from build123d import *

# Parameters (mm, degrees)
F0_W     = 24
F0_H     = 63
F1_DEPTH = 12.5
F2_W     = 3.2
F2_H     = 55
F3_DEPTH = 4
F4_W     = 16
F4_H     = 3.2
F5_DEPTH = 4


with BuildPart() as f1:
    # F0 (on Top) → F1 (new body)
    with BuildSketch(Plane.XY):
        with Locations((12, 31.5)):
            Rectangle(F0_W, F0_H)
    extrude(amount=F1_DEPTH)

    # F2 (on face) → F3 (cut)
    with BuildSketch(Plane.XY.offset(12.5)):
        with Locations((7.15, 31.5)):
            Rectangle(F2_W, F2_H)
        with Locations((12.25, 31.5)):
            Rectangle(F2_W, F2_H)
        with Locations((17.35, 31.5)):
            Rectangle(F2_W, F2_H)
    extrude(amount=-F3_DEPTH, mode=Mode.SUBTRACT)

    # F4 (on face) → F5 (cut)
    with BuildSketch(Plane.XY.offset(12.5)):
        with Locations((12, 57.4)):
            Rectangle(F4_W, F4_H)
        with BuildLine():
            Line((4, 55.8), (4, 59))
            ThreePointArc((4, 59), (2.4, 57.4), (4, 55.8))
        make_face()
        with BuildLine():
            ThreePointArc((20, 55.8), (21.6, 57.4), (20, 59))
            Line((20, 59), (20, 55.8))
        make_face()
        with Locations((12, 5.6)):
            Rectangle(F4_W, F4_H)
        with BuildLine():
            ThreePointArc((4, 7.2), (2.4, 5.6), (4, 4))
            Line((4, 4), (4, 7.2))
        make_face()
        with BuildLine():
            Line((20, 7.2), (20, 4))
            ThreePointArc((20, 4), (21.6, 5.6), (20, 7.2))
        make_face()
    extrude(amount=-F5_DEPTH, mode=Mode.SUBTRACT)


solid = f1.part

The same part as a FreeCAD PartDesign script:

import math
import FreeCAD as App
import Part
import Sketcher


def add_polygon(sketch, points):
    """Adds a closed chain of lines whose ends are joined by coincident constraints."""
    first, n = sketch.GeometryCount, len(points)
    for a, b in zip(points, points[1:] + points[:1]):
        sketch.addGeometry(Part.LineSegment(App.Vector(*a, 0), App.Vector(*b, 0)), False)
    for i in range(n):
        sketch.addConstraint(Sketcher.Constraint("Coincident", first + i, 2, first + (i + 1) % n, 1))

doc = App.newDocument("Part")
body = doc.addObject("PartDesign::Body", "Body")

# Sketch on XY plane
sketch1 = body.newObject("Sketcher::SketchObject", "Sketch")
sketch1.AttachmentSupport = (doc.getObject("XY_Plane"), [""])
sketch1.MapMode = "FlatFace"
add_polygon(sketch1, [(0, 63), (0, 0), (24, 0), (24, 63)])  # lines 0-3
sketch1.addConstraint(Sketcher.Constraint("Vertical", 0))
sketch1.addConstraint(Sketcher.Constraint("Horizontal", 1))
sketch1.addConstraint(Sketcher.Constraint("Vertical", 2))
sketch1.addConstraint(Sketcher.Constraint("Horizontal", 3))
sketch1.addConstraint(Sketcher.Constraint("Coincident", 0, 2, -1, 1))
sketch1.addConstraint(Sketcher.Constraint("DistanceX", 1, 1, 1, 2, 24.0))
sketch1.addConstraint(Sketcher.Constraint("DistanceY", 0, 2, 0, 1, 63.0))
pad1 = body.newObject("PartDesign::Pad", "Pad")
pad1.Profile = sketch1
pad1.Length = 12.5

# Sketch on XY plane
sketch2 = body.newObject("Sketcher::SketchObject", "Sketch001")
sketch2.AttachmentSupport = (doc.getObject("XY_Plane"), [""])
sketch2.MapMode = "FlatFace"
sketch2.AttachmentOffset = App.Placement(App.Vector(0, 0, 12.5), App.Rotation())
add_polygon(sketch2, [(5.5, 59), (5.5, 4), (8.8, 4), (8.8, 59)])  # lines 0-3
add_polygon(sketch2, [(10.7, 59), (10.7, 4), (13.8, 4), (13.8, 59)])  # lines 4-7
add_polygon(sketch2, [(15.8, 59), (15.8, 4), (18.9, 4), (18.9, 59)])  # lines 8-11
sketch2.addConstraint(Sketcher.Constraint("Vertical", 0))
sketch2.addConstraint(Sketcher.Constraint("Horizontal", 1))
sketch2.addConstraint(Sketcher.Constraint("Vertical", 2))
sketch2.addConstraint(Sketcher.Constraint("Horizontal", 3))
sketch2.addConstraint(Sketcher.Constraint("Vertical", 4))
sketch2.addConstraint(Sketcher.Constraint("Horizontal", 5))
sketch2.addConstraint(Sketcher.Constraint("Vertical", 6))
sketch2.addConstraint(Sketcher.Constraint("Horizontal", 7))
sketch2.addConstraint(Sketcher.Constraint("Vertical", 8))
sketch2.addConstraint(Sketcher.Constraint("Horizontal", 9))
sketch2.addConstraint(Sketcher.Constraint("Vertical", 10))
sketch2.addConstraint(Sketcher.Constraint("Horizontal", 11))
sketch2.addConstraint(Sketcher.Constraint("Horizontal", 1, 2, 4, 2))
sketch2.addConstraint(Sketcher.Constraint("Horizontal", 3, 2, 6, 2))
sketch2.addConstraint(Sketcher.Constraint("Horizontal", 5, 2, 8, 2))
sketch2.addConstraint(Sketcher.Constraint("Horizontal", 7, 2, 10, 2))
sketch2.addConstraint(Sketcher.Constraint("Equal", 3, 5))
sketch2.addConstraint(Sketcher.Constraint("Equal", 7, 9))
sketch2.addConstraint(Sketcher.Constraint("DistanceY", 0, 2, 0, 1, 55.0))
sketch2.addConstraint(Sketcher.Constraint("DistanceX", 1, 1, 1, 2, 3.2))
sketch2.addConstraint(Sketcher.Constraint("DistanceY", -1, 1, 0, 2, 4.0))
sketch2.addConstraint(Sketcher.Constraint("DistanceX", 1, 2, 8, 2, 7.0))
sketch2.addConstraint(Sketcher.Constraint("DistanceX", 1, 2, 4, 2, 1.9))
sketch2.addConstraint(Sketcher.Constraint("DistanceX", -1, 1, 0, 2, 5.55))
pocket1 = body.newObject("PartDesign::Pocket", "Pocket")
pocket1.Profile = sketch2
pocket1.Length = 4

# Sketch on XY plane
sketch3 = body.newObject("Sketcher::SketchObject", "Sketch002")
sketch3.AttachmentSupport = (doc.getObject("XY_Plane"), [""])
sketch3.MapMode = "FlatFace"
sketch3.AttachmentOffset = App.Placement(App.Vector(0, 0, 12.5), App.Rotation())
sketch3.addGeometry(Part.LineSegment(App.Vector(4, 55.8, 0), App.Vector(20, 55.8, 0)), False)
sketch3.addGeometry(Part.ArcOfCircle(Part.Circle(App.Vector(20, 57.4, 0), App.Vector(0, 0, 1), 1.6), math.radians(-90), math.radians(90)), False)
sketch3.addGeometry(Part.LineSegment(App.Vector(20, 59, 0), App.Vector(4, 59, 0)), False)
sketch3.addGeometry(Part.ArcOfCircle(Part.Circle(App.Vector(4, 57.4, 0), App.Vector(0, 0, 1), 1.6), math.radians(90), math.radians(270)), False)
sketch3.addGeometry(Part.LineSegment(App.Vector(4, 4, 0), App.Vector(20, 4, 0)), False)
sketch3.addGeometry(Part.ArcOfCircle(Part.Circle(App.Vector(20, 5.6, 0), App.Vector(0, 0, 1), 1.6), math.radians(-90), math.radians(90)), False)
sketch3.addGeometry(Part.LineSegment(App.Vector(20, 7.2, 0), App.Vector(4, 7.2, 0)), False)
sketch3.addGeometry(Part.ArcOfCircle(Part.Circle(App.Vector(4, 5.6, 0), App.Vector(0, 0, 1), 1.6), math.radians(90), math.radians(270)), False)
sketch3.addConstraint(Sketcher.Constraint("Tangent", 0, 2, 1, 1))
sketch3.addConstraint(Sketcher.Constraint("Tangent", 1, 2, 2, 1))
sketch3.addConstraint(Sketcher.Constraint("Tangent", 2, 2, 3, 1))
sketch3.addConstraint(Sketcher.Constraint("Tangent", 3, 2, 0, 1))
sketch3.addConstraint(Sketcher.Constraint("Tangent", 4, 2, 5, 1))
sketch3.addConstraint(Sketcher.Constraint("Tangent", 5, 2, 6, 1))
sketch3.addConstraint(Sketcher.Constraint("Tangent", 6, 2, 7, 1))
sketch3.addConstraint(Sketcher.Constraint("Tangent", 7, 2, 4, 1))
sketch3.addConstraint(Sketcher.Constraint("Horizontal", 0))
sketch3.addConstraint(Sketcher.Constraint("Horizontal", 2))
sketch3.addConstraint(Sketcher.Constraint("Horizontal", 4))
sketch3.addConstraint(Sketcher.Constraint("Horizontal", 6))
sketch3.addConstraint(Sketcher.Constraint("Equal", 3, 5))
sketch3.addConstraint(Sketcher.Constraint("Vertical", 1, 3, 5, 3))
sketch3.addConstraint(Sketcher.Constraint("Vertical", 3, 3, 7, 3))
sketch3.addConstraint(Sketcher.Constraint("Radius", 1, 1.6))
sketch3.addConstraint(Sketcher.Constraint("DistanceX", 0, 1, 0, 2, 16.0))
sketch3.addConstraint(Sketcher.Constraint("DistanceX", -1, 1, 1, 3, 20.0))
sketch3.addConstraint(Sketcher.Constraint("DistanceY", -1, 1, 1, 2, 59.0))
sketch3.addConstraint(Sketcher.Constraint("DistanceY", -1, 1, 4, 2, 4.0))
pocket2 = body.newObject("PartDesign::Pocket", "Pocket001")
pocket2.Profile = sketch3
pocket2.Length = 4

doc.recompute()
